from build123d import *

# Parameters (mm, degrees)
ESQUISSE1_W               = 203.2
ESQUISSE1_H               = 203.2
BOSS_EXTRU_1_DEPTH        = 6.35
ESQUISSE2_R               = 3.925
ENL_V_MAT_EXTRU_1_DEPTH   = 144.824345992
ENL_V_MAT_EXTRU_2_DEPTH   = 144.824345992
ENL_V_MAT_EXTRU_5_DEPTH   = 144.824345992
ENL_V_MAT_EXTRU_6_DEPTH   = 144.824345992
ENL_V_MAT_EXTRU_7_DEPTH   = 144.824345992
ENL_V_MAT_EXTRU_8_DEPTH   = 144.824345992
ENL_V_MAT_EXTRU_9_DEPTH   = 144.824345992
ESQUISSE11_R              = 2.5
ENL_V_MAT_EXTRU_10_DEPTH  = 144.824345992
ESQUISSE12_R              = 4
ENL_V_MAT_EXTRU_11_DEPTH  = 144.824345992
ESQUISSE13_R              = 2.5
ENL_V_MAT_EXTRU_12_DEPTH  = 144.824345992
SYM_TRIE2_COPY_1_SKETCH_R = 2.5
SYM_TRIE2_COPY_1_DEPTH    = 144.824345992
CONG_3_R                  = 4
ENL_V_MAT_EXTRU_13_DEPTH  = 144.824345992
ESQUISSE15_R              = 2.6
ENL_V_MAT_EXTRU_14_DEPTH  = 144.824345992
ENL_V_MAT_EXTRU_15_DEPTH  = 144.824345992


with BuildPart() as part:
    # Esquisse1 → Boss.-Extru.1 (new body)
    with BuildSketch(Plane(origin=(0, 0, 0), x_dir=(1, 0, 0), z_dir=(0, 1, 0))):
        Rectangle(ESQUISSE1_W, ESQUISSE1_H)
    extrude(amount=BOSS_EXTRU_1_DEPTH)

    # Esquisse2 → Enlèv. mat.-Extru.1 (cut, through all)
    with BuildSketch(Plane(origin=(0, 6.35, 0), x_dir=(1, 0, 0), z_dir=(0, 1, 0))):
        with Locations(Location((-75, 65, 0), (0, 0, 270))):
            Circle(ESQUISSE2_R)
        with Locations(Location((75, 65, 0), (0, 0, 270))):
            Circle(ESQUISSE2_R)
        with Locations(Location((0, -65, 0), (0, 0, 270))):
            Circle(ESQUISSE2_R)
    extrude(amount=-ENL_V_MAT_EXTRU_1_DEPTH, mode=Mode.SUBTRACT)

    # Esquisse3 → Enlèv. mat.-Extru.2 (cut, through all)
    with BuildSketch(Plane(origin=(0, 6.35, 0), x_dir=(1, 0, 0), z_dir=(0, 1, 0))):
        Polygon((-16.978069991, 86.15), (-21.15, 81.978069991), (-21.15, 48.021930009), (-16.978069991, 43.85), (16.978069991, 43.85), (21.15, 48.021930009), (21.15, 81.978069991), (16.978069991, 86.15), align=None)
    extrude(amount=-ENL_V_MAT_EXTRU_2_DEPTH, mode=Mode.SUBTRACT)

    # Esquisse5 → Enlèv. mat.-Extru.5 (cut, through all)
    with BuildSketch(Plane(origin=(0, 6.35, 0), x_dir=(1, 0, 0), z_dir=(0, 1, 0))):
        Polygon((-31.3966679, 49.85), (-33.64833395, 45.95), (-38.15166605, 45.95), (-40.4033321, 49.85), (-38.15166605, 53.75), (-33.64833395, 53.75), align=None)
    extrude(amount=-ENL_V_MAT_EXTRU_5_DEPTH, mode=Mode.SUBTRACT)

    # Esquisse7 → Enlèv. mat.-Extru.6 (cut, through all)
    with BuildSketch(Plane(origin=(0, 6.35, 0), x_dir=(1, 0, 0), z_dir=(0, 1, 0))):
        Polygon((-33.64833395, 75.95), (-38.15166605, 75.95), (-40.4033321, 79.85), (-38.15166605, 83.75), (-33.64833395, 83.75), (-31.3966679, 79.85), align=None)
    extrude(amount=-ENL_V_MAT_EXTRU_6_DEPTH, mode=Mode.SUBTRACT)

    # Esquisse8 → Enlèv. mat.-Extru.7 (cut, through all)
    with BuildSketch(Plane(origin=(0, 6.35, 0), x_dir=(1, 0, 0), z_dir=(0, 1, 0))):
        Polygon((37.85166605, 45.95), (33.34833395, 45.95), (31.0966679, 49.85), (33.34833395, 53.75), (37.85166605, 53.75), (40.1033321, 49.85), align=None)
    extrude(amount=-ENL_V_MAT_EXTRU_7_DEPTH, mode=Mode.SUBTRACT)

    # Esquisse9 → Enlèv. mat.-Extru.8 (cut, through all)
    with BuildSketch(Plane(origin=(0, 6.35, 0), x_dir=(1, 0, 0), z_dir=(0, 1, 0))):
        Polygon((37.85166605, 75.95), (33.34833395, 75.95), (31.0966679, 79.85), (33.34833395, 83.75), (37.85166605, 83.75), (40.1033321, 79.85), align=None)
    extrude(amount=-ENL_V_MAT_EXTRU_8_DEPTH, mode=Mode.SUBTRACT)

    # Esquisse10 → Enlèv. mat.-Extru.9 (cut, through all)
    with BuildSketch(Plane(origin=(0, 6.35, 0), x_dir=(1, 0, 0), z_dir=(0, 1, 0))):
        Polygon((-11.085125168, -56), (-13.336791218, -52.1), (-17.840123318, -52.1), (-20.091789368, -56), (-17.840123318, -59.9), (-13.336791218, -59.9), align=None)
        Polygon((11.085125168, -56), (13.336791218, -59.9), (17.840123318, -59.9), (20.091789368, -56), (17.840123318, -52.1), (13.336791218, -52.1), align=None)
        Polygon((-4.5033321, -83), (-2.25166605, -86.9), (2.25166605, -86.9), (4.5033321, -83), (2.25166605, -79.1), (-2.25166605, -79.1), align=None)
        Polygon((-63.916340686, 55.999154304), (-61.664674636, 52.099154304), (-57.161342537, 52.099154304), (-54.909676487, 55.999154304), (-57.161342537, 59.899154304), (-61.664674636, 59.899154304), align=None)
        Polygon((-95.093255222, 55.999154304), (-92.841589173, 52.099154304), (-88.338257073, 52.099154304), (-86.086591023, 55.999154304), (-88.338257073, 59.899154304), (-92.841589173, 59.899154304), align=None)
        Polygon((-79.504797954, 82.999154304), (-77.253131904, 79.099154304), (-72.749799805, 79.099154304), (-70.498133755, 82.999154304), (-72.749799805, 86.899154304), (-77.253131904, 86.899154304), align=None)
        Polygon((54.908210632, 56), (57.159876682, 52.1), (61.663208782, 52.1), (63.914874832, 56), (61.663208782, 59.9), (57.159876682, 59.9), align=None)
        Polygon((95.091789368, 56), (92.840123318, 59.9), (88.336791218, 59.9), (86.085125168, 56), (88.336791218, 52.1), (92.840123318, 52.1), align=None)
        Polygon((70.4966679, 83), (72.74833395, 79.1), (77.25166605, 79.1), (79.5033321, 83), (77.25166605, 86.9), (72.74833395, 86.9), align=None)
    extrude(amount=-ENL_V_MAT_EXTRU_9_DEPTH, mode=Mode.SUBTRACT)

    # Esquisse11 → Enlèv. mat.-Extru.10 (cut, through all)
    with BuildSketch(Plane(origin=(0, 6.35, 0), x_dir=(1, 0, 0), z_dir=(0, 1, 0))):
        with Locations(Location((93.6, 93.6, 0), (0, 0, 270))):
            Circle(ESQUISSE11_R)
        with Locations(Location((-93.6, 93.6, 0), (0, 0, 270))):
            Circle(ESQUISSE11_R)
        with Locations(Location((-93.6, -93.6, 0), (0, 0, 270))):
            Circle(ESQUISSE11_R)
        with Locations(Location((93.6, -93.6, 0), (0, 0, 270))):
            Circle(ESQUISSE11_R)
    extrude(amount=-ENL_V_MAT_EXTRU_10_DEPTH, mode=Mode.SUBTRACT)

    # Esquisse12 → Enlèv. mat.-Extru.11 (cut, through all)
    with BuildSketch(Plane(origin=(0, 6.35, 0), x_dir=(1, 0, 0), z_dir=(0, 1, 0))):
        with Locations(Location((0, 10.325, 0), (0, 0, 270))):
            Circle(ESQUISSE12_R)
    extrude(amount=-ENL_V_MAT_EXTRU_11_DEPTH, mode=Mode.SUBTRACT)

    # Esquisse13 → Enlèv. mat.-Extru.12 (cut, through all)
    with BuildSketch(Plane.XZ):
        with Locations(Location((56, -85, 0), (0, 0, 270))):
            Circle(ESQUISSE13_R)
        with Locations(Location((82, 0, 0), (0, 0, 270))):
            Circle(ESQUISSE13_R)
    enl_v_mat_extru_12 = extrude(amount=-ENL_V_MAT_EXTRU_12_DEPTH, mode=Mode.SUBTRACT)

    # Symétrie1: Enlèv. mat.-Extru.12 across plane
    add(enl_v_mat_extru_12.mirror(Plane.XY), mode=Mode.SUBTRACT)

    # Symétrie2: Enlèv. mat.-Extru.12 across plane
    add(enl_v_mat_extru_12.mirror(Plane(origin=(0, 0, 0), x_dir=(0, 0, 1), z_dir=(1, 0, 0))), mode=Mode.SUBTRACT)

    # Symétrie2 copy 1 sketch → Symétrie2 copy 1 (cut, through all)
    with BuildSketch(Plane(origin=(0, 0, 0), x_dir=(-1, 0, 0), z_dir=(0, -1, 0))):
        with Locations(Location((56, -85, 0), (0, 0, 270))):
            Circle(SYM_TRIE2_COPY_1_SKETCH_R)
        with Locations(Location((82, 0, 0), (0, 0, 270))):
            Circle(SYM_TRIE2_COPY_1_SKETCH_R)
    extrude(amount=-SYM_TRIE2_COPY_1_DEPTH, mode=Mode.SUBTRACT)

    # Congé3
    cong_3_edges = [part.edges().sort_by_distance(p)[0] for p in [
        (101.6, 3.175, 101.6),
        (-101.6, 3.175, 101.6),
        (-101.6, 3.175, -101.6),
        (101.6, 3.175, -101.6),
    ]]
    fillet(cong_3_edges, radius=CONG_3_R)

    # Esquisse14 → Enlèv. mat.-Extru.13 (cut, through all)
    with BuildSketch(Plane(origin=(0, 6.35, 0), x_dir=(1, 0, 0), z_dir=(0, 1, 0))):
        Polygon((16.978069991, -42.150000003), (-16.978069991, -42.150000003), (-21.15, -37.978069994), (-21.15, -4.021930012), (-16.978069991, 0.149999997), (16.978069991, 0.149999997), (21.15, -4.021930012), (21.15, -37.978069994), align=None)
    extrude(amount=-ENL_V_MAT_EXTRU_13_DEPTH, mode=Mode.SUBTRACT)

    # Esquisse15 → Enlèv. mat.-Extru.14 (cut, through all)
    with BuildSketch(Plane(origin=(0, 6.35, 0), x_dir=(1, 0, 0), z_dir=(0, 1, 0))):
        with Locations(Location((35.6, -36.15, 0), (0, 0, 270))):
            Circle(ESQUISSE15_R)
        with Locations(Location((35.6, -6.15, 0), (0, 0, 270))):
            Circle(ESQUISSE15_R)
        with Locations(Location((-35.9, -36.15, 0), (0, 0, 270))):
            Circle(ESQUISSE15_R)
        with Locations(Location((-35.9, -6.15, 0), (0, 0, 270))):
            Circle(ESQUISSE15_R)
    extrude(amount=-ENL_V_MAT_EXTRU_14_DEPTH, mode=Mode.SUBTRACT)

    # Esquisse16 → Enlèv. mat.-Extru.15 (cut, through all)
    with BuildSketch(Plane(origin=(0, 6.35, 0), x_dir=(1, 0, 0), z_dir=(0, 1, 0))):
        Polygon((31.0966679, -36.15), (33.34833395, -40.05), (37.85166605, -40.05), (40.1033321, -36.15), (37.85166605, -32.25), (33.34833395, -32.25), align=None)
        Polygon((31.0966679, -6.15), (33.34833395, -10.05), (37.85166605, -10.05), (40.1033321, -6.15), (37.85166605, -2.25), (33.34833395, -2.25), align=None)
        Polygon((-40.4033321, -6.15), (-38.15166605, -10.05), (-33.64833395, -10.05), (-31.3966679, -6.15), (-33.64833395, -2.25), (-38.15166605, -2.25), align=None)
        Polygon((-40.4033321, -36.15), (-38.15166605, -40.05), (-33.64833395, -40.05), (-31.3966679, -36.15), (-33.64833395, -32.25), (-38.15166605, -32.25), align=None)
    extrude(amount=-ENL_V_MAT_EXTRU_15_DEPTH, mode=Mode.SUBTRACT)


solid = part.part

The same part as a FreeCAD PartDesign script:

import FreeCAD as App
import Part
import Sketcher

V = App.Vector
Q = App.Units.Quantity


def edges_at(feature, points):
    """Names of the edges that pass closest to the given points."""
    edges = feature.Shape.Edges
    near = lambda p: min(range(len(edges)), key=lambda i: edges[i].distToShape(Part.Vertex(*p))[0])
    return sorted({f"Edge{near(p) + 1}" for p in points})

doc = App.newDocument("Part")
body = doc.addObject("PartDesign::Body", "Body")

sketch1 = body.newObject("Sketcher::SketchObject", "Sketch")
sketch1.AttachmentSupport = (doc.getObject("XZ_Plane"), [""])
sketch1.MapMode = "FlatFace"
sketch1.addGeometry([
    Part.LineSegment(V(-101.6, -101.6, 0), V(-101.6, 101.6, 0)),
    Part.LineSegment(V(-101.6, 101.6, 0), V(101.6, 101.6, 0)),
    Part.LineSegment(V(101.6, 101.6, 0), V(101.6, -101.6, 0)),
    Part.LineSegment(V(101.6, -101.6, 0), V(-101.6, -101.6, 0)),
], False)
sketch1.addConstraint([
    Sketcher.Constraint("Coincident", 0, 2, 1, 1),
    Sketcher.Constraint("Coincident", 1, 2, 2, 1),
    Sketcher.Constraint("Coincident", 2, 2, 3, 1),
    Sketcher.Constraint("Coincident", 3, 2, 0, 1),
    Sketcher.Constraint("Vertical", 0),
    Sketcher.Constraint("Horizontal", 1),
    Sketcher.Constraint("Vertical", 2),
    Sketcher.Constraint("Horizontal", 3),
    Sketcher.Constraint("Symmetric", 0, 2, 2, 2, -1, 1),
    Sketcher.Constraint("Equal", 3, 0),
    Sketcher.Constraint("DistanceX", 1, 1, 1, 2, Q("203.2 mm")),
])
pad1 = body.newObject("PartDesign::Pad", "Pad")
pad1.Profile = sketch1
pad1.Length = 6.35
pad1.Reversed = True

sketch2 = body.newObject("Sketcher::SketchObject", "Sketch001")
sketch2.AttachmentSupport = (doc.getObject("XZ_Plane"), [""])
sketch2.MapMode = "FlatFace"
sketch2.AttachmentOffset = App.Placement(V(0, 0, -6.35), App.Rotation())
sketch2.addGeometry([
    Part.Circle(V(-75, -65, 0), V(0, 0, 1), 3.925),
    Part.Circle(V(75, -65, 0), V(0, 0, 1), 3.925),
    Part.Circle(V(0, 65, 0), V(0, 0, 1), 3.925),
], False)
sketch2.addConstraint([
    Sketcher.Constraint("Equal", 0, 1),
    Sketcher.Constraint("Equal", 1, 2),
    Sketcher.Constraint("Symmetric", 0, 3, 1, 3, -2),
    Sketcher.Constraint("PointOnObject", 2, 3, -2),
    Sketcher.Constraint("Diameter", 0, Q("7.85 mm")),
    Sketcher.Constraint("DistanceX", 0, 3, -1, 1, Q("75 mm")),
    Sketcher.Constraint("DistanceY", 0, 3, -1, 1, Q("65 mm")),
    Sketcher.Constraint("DistanceY", -1, 1, 2, 3, Q("65 mm")),
])
pocket1 = body.newObject("PartDesign::Pocket", "Pocket")
pocket1.Profile = sketch2
pocket1.Type = "ThroughAll"
pocket1.Reversed = True

sketch3 = body.newObject("Sketcher::SketchObject", "Sketch002")
sketch3.AttachmentSupport = (doc.getObject("XZ_Plane"), [""])
sketch3.MapMode = "FlatFace"
sketch3.AttachmentOffset = App.Placement(V(0, 0, -6.35), App.Rotation())
sketch3.addGeometry([
    Part.LineSegment(V(-16.97807, -86.15, 0), V(-21.15, -81.97807, 0)),
    Part.LineSegment(V(-21.15, -81.97807, 0), V(-21.15, -48.02193, 0)),
    Part.LineSegment(V(-21.15, -48.02193, 0), V(-16.97807, -43.85, 0)),
    Part.LineSegment(V(-16.97807, -43.85, 0), V(16.97807, -43.85, 0)),
    Part.LineSegment(V(16.97807, -43.85, 0), V(21.15, -48.02193, 0)),
    Part.LineSegment(V(21.15, -48.02193, 0), V(21.15, -81.97807, 0)),
    Part.LineSegment(V(21.15, -81.97807, 0), V(16.97807, -86.15, 0)),
    Part.LineSegment(V(16.97807, -86.15, 0), V(-16.97807, -86.15, 0)),
], False)
sketch3.addConstraint([
    Sketcher.Constraint("Coincident", 0, 2, 1, 1),
    Sketcher.Constraint("Coincident", 1, 2, 2, 1),
    Sketcher.Constraint("Coincident", 2, 2, 3, 1),
    Sketcher.Constraint("Coincident", 3, 2, 4, 1),
    Sketcher.Constraint("Coincident", 4, 2, 5, 1),
    Sketcher.Constraint("Coincident", 5, 2, 6, 1),
    Sketcher.Constraint("Coincident", 6, 2, 7, 1),
    Sketcher.Constraint("Coincident", 7, 2, 0, 1),
    Sketcher.Constraint("Vertical", 1),
    Sketcher.Constraint("Horizontal", 3),
    Sketcher.Constraint("Vertical", 5),
    Sketcher.Constraint("Horizontal", 7),
    Sketcher.Constraint("Symmetric", 1, 2, 4, 2, -2),
    Sketcher.Constraint("Perpendicular", 0, 2),
    Sketcher.Constraint("Perpendicular", 2, 4),
    Sketcher.Constraint("Perpendicular", 4, 6),
    Sketcher.Constraint("Horizontal", 0, 2, 5, 2),
    Sketcher.Constraint("Vertical", 3, 2, 6, 2),
    Sketcher.Constraint("Vertical", 2, 2, 7, 2),
    Sketcher.Constraint("Equal", 7, 1),
    Sketcher.Constraint("Distance", 0, Q("5.9 mm")),
    Sketcher.Constraint("DistanceX", 1, 2, 4, 2, Q("42.3 mm")),
    Sketcher.Constraint("DistanceY", 2, 2, -1, 1, Q("43.85 mm")),
])
pocket2 = body.newObject("PartDesign::Pocket", "Pocket001")
pocket2.Profile = sketch3
pocket2.Type = "ThroughAll"
pocket2.Reversed = True

sketch4 = body.newObject("Sketcher::SketchObject", "Sketch003")
sketch4.AttachmentSupport = (doc.getObject("XZ_Plane"), [""])
sketch4.MapMode = "FlatFace"
sketch4.AttachmentOffset = App.Placement(V(0, 0, -6.35), App.Rotation())
sketch4.addGeometry([
    Part.LineSegment(V(-33.648334, -45.95, 0), V(-31.396668, -49.85, 0)),
    Part.LineSegment(V(-31.396668, -49.85, 0), V(-33.648334, -53.75, 0)),
    Part.LineSegment(V(-33.648334, -53.75, 0), V(-38.151666, -53.75, 0)),
    Part.LineSegment(V(-38.151666, -53.75, 0), V(-40.403332, -49.85, 0)),
    Part.LineSegment(V(-40.403332, -49.85, 0), V(-38.151666, -45.95, 0)),
    Part.LineSegment(V(-38.151666, -45.95, 0), V(-33.648334, -45.95, 0)),
], False)
sketch4.addConstraint([
    Sketcher.Constraint("Coincident", 0, 2, 1, 1),
    Sketcher.Constraint("Coincident", 1, 2, 2, 1),
    Sketcher.Constraint("Coincident", 2, 2, 3, 1),
    Sketcher.Constraint("Coincident", 3, 2, 4, 1),
    Sketcher.Constraint("Coincident", 4, 2, 5, 1),
    Sketcher.Constraint("Coincident", 5, 2, 0, 1),
    Sketcher.Constraint("Horizontal", 2),
    Sketcher.Constraint("Horizontal", 5),
    Sketcher.Constraint("Parallel", 0, 3),
    Sketcher.Constraint("Parallel", 1, 4),
    Sketcher.Constraint("Horizontal", 0, 2, 3, 2),
    Sketcher.Constraint("Vertical", 2, 2, 4, 2),
    Sketcher.Constraint("Vertical", 1, 2, 5, 2),
    Sketcher.Constraint("Angle", 0, Q("-60 deg")),
    Sketcher.Constraint("DistanceY", 1, 2, 0, 2, Q("3.9 mm")),
    Sketcher.Constraint("DistanceY", 0, 2, -1, 1, Q("49.85 mm")),
    Sketcher.Constraint("DistanceX", 2, 2, 0, 2, Q("6.754998 mm")),
    Sketcher.Constraint("DistanceX", 0, 2, -1, 1, Q("31.396668 mm")),
])
pocket3 = body.newObject("PartDesign::Pocket", "Pocket002")
pocket3.Profile = sketch4
pocket3.Type = "ThroughAll"
pocket3.Reversed = True

sketch5 = body.newObject("Sketcher::SketchObject", "Sketch004")
sketch5.AttachmentSupport = (doc.getObject("XZ_Plane"), [""])
sketch5.MapMode = "FlatFace"
sketch5.AttachmentOffset = App.Placement(V(0, 0, -6.35), App.Rotation())
sketch5.addGeometry([
    Part.LineSegment(V(-38.151666, -75.95, 0), V(-33.648334, -75.95, 0)),
    Part.LineSegment(V(-33.648334, -75.95, 0), V(-31.396668, -79.85, 0)),
    Part.LineSegment(V(-31.396668, -79.85, 0), V(-33.648334, -83.75, 0)),
    Part.LineSegment(V(-33.648334, -83.75, 0), V(-38.151666, -83.75, 0)),
    Part.LineSegment(V(-38.151666, -83.75, 0), V(-40.403332, -79.85, 0)),
    Part.LineSegment(V(-40.403332, -79.85, 0), V(-38.151666, -75.95, 0)),
], False)
sketch5.addConstraint([
    Sketcher.Constraint("Coincident", 0, 2, 1, 1),
    Sketcher.Constraint("Coincident", 1, 2, 2, 1),
    Sketcher.Constraint("Coincident", 2, 2, 3, 1),
    Sketcher.Constraint("Coincident", 3, 2, 4, 1),
    Sketcher.Constraint("Coincident", 4, 2, 5, 1),
    Sketcher.Constraint("Coincident", 5, 2, 0, 1),
    Sketcher.Constraint("Horizontal", 0),
    Sketcher.Constraint("Horizontal", 3),
    Sketcher.Constraint("Parallel", 1, 4),
    Sketcher.Constraint("Parallel", 2, 5),
    Sketcher.Constraint("Horizontal", 1, 2, 4, 2),
    Sketcher.Constraint("Vertical", 0, 2, 2, 2),
    Sketcher.Constraint("Vertical", 3, 2, 5, 2),
    Sketcher.Constraint("Angle", 1, Q("-60 deg")),
    Sketcher.Constraint("DistanceY", 1, 2, 0, 2, Q("3.9 mm")),
    Sketcher.Constraint("DistanceY", 0, 2, -1, 1, Q("75.95 mm")),
    Sketcher.Constraint("DistanceX", 3, 2, 1, 2, Q("6.754998 mm")),
    Sketcher.Constraint("DistanceX", 0, 2, -1, 1, Q("33.648334 mm")),
])
pocket4 = body.newObject("PartDesign::Pocket", "Pocket003")
pocket4.Profile = sketch5
pocket4.Type = "ThroughAll"
pocket4.Reversed = True

sketch6 = body.newObject("Sketcher::SketchObject", "Sketch005")
sketch6.AttachmentSupport = (doc.getObject("XZ_Plane"), [""])
sketch6.MapMode = "FlatFace"
sketch6.AttachmentOffset = App.Placement(V(0, 0, -6.35), App.Rotation())
sketch6.addGeometry([
    Part.LineSegment(V(33.348334, -45.95, 0), V(37.851666, -45.95, 0)),
    Part.LineSegment(V(37.851666, -45.95, 0), V(40.103332, -49.85, 0)),
    Part.LineSegment(V(40.103332, -49.85, 0), V(37.851666, -53.75, 0)),
    Part.LineSegment(V(37.851666, -53.75, 0), V(33.348334, -53.75, 0)),
    Part.LineSegment(V(33.348334, -53.75, 0), V(31.096668, -49.85, 0)),
    Part.LineSegment(V(31.096668, -49.85, 0), V(33.348334, -45.95, 0)),
], False)
sketch6.addConstraint([
    Sketcher.Constraint("Coincident", 0, 2, 1, 1),
    Sketcher.Constraint("Coincident", 1, 2, 2, 1),
    Sketcher.Constraint("Coincident", 2, 2, 3, 1),
    Sketcher.Constraint("Coincident", 3, 2, 4, 1),
    Sketcher.Constraint("Coincident", 4, 2, 5, 1),
    Sketcher.Constraint("Coincident", 5, 2, 0, 1),
    Sketcher.Constraint("Horizontal", 0),
    Sketcher.Constraint("Horizontal", 3),
    Sketcher.Constraint("Parallel", 1, 4),
    Sketcher.Constraint("Parallel", 2, 5),
    Sketcher.Constraint("Horizontal", 1, 2, 4, 2),
    Sketcher.Constraint("Vertical", 0, 2, 2, 2),
    Sketcher.Constraint("Vertical", 3, 2, 5, 2),
    Sketcher.Constraint("Angle", 1, Q("-60 deg")),
    Sketcher.Constraint("DistanceY", 1, 2, 0, 2, Q("3.9 mm")),
    Sketcher.Constraint("DistanceY", 0, 2, -1, 1, Q("45.95 mm")),
    Sketcher.Constraint("DistanceX", 3, 2, 1, 2, Q("6.754998 mm")),
    Sketcher.Constraint("DistanceX", -1, 1, 0, 2, Q("37.851666 mm")),
])
pocket5 = body.newObject("PartDesign::Pocket", "Pocket004")
pocket5.Profile = sketch6
pocket5.Type = "ThroughAll"
pocket5.Reversed = True

sketch7 = body.newObject("Sketcher::SketchObject", "Sketch006")
sketch7.AttachmentSupport = (doc.getObject("XZ_Plane"), [""])
sketch7.MapMode = "FlatFace"
sketch7.AttachmentOffset = App.Placement(V(0, 0, -6.35), App.Rotation())
sketch7.addGeometry([
    Part.LineSegment(V(33.348334, -75.95, 0), V(37.851666, -75.95, 0)),
    Part.LineSegment(V(37.851666, -75.95, 0), V(40.103332, -79.85, 0)),
    Part.LineSegment(V(40.103332, -79.85, 0), V(37.851666, -83.75, 0)),
    Part.LineSegment(V(37.851666, -83.75, 0), V(33.348334, -83.75, 0)),
    Part.LineSegment(V(33.348334, -83.75, 0), V(31.096668, -79.85, 0)),
    Part.LineSegment(V(31.096668, -79.85, 0), V(33.348334, -75.95, 0)),
], False)
sketch7.addConstraint([
    Sketcher.Constraint("Coincident", 0, 2, 1, 1),
    Sketcher.Constraint("Coincident", 1, 2, 2, 1),
    Sketcher.Constraint("Coincident", 2, 2, 3, 1),
    Sketcher.Constraint("Coincident", 3, 2, 4, 1),
    Sketcher.Constraint("Coincident", 4, 2, 5, 1),
    Sketcher.Constraint("Coincident", 5, 2, 0, 1),
    Sketcher.Constraint("Horizontal", 0),
    Sketcher.Constraint("Horizontal", 3),
    Sketcher.Constraint("Parallel", 1, 4),
    Sketcher.Constraint("Parallel", 2, 5),
    Sketcher.Constraint("Horizontal", 1, 2, 4, 2),
    Sketcher.Constraint("Vertical", 0, 2, 2, 2),
    Sketcher.Constraint("Vertical", 3, 2, 5, 2),
    Sketcher.Constraint("Angle", 1, Q("-60 deg")),
    Sketcher.Constraint("DistanceY", 1, 2, 0, 2, Q("3.9 mm")),
    Sketcher.Constraint("DistanceY", 0, 2, -1, 1, Q("75.95 mm")),
    Sketcher.Constraint("DistanceX", 3, 2, 1, 2, Q("6.754998 mm")),
    Sketcher.Constraint("DistanceX", -1, 1, 0, 2, Q("37.851666 mm")),
])
pocket6 = body.newObject("PartDesign::Pocket", "Pocket005")
pocket6.Profile = sketch7
pocket6.Type = "ThroughAll"
pocket6.Reversed = True

sketch8 = body.newObject("Sketcher::SketchObject", "Sketch007")
sketch8.AttachmentSupport = (doc.getObject("XZ_Plane"), [""])
sketch8.MapMode = "FlatFace"
sketch8.AttachmentOffset = App.Placement(V(0, 0, -6.35), App.Rotation())
sketch8.addGeometry([
    Part.LineSegment(V(-11.085125, 56, 0), V(-13.336791, 52.1, 0)),
    Part.LineSegment(V(-13.336791, 52.1, 0), V(-17.840123, 52.1, 0)),
    Part.LineSegment(V(-17.840123, 52.1, 0), V(-20.091789, 56, 0)),
    Part.LineSegment(V(-20.091789, 56, 0), V(-17.840123, 59.9, 0)),
    Part.LineSegment(V(-17.840123, 59.9, 0), V(-13.336791, 59.9, 0)),
    Part.LineSegment(V(-13.336791, 59.9, 0), V(-11.085125, 56, 0)),
    Part.LineSegment(V(11.085125, 56, 0), V(13.336791, 59.9, 0)),
    Part.LineSegment(V(13.336791, 59.9, 0), V(17.840123, 59.9, 0)),
    Part.LineSegment(V(17.840123, 59.9, 0), V(20.091789, 56, 0)),
    Part.LineSegment(V(20.091789, 56, 0), V(17.840123, 52.1, 0)),
    Part.LineSegment(V(17.840123, 52.1, 0), V(13.336791, 52.1, 0)),
    Part.LineSegment(V(13.336791, 52.1, 0), V(11.085125, 56, 0)),
    Part.LineSegment(V(-4.503332, 83, 0), V(-2.251666, 86.9, 0)),
    Part.LineSegment(V(-2.251666, 86.9, 0), V(2.251666, 86.9, 0)),
    Part.LineSegment(V(2.251666, 86.9, 0), V(4.503332, 83, 0)),
    Part.LineSegment(V(4.503332, 83, 0), V(2.251666, 79.1, 0)),
    Part.LineSegment(V(2.251666, 79.1, 0), V(-2.251666, 79.1, 0)),
    Part.LineSegment(V(-2.251666, 79.1, 0), V(-4.503332, 83, 0)),
    Part.LineSegment(V(-63.916341, -55.999154, 0), V(-61.664675, -52.099154, 0)),
    Part.LineSegment(V(-61.664675, -52.099154, 0), V(-57.161343, -52.099154, 0)),
    Part.LineSegment(V(-57.161343, -52.099154, 0), V(-54.909676, -55.999154, 0)),
    Part.LineSegment(V(-54.909676, -55.999154, 0), V(-57.161343, -59.899154, 0)),
    Part.LineSegment(V(-57.161343, -59.899154, 0), V(-61.664675, -59.899154, 0)),
    Part.LineSegment(V(-61.664675, -59.899154, 0), V(-63.916341, -55.999154, 0)),
    Part.LineSegment(V(-95.093255, -55.999154, 0), V(-92.841589, -52.099154, 0)),
    Part.LineSegment(V(-92.841589, -52.099154, 0), V(-88.338257, -52.099154, 0)),
    Part.LineSegment(V(-88.338257, -52.099154, 0), V(-86.086591, -55.999154, 0)),
    Part.LineSegment(V(-86.086591, -55.999154, 0), V(-88.338257, -59.899154, 0)),
    Part.LineSegment(V(-88.338257, -59.899154, 0), V(-92.841589, -59.899154, 0)),
    Part.LineSegment(V(-92.841589, -59.899154, 0), V(-95.093255, -55.999154, 0)),
    Part.LineSegment(V(-79.504798, -82.999154, 0), V(-77.253132, -79.099154, 0)),
    Part.LineSegment(V(-77.253132, -79.099154, 0), V(-72.7498, -79.099154, 0)),
    Part.LineSegment(V(-72.7498, -79.099154, 0), V(-70.498134, -82.999154, 0)),
    Part.LineSegment(V(-70.498134, -82.999154, 0), V(-72.7498, -86.899154, 0)),
    Part.LineSegment(V(-72.7498, -86.899154, 0), V(-77.253132, -86.899154, 0)),
    Part.LineSegment(V(-77.253132, -86.899154, 0), V(-79.504798, -82.999154, 0)),
    Part.LineSegment(V(54.908211, -56, 0), V(57.159877, -52.1, 0)),
    Part.LineSegment(V(57.159877, -52.1, 0), V(61.663209, -52.1, 0)),
    Part.LineSegment(V(61.663209, -52.1, 0), V(63.914875, -56, 0)),
    Part.LineSegment(V(63.914875, -56, 0), V(61.663209, -59.9, 0)),
    Part.LineSegment(V(61.663209, -59.9, 0), V(57.159877, -59.9, 0)),
    Part.LineSegment(V(57.159877, -59.9, 0), V(54.908211, -56, 0)),
    Part.LineSegment(V(95.091789, -56, 0), V(92.840123, -59.9, 0)),
    Part.LineSegment(V(92.840123, -59.9, 0), V(88.336791, -59.9, 0)),
    Part.LineSegment(V(88.336791, -59.9, 0), V(86.085125, -56, 0)),
    Part.LineSegment(V(86.085125, -56, 0), V(88.336791, -52.1, 0)),
    Part.LineSegment(V(88.336791, -52.1, 0), V(92.840123, -52.1, 0)),
    Part.LineSegment(V(92.840123, -52.1, 0), V(95.091789, -56, 0)),
    Part.LineSegment(V(70.496668, -83, 0), V(72.748334, -79.1, 0)),
    Part.LineSegment(V(72.748334, -79.1, 0), V(77.251666, -79.1, 0)),
    Part.LineSegment(V(77.251666, -79.1, 0), V(79.503332, -83, 0)),
    Part.LineSegment(V(79.503332, -83, 0), V(77.251666, -86.9, 0)),
    Part.LineSegment(V(77.251666, -86.9, 0), V(72.748334, -86.9, 0)),
    Part.LineSegment(V(72.748334, -86.9, 0), V(70.496668, -83, 0)),
], False)
sketch8.addConstraint([
    Sketcher.Constraint("Coincident", 0, 2, 1, 1),
    Sketcher.Constraint("Coincident", 1, 2, 2, 1),
    Sketcher.Constraint("Coincident", 2, 2, 3, 1),
    Sketcher.Constraint("Coincident", 3, 2, 4, 1),
    Sketcher.Constraint("Coincident", 4, 2, 5, 1),
    Sketcher.Constraint("Coincident", 5, 2, 0, 1),
    Sketcher.Constraint("Coincident", 6, 2, 7, 1),
    Sketcher.Constraint("Coincident", 7, 2, 8, 1),
    Sketcher.Constraint("Coincident", 8, 2, 9, 1),
    Sketcher.Constraint("Coincident", 9, 2, 10, 1),
    Sketcher.Constraint("Coincident", 10, 2, 11, 1),
    Sketcher.Constraint("Coincident", 11, 2, 6, 1),
    Sketcher.Constraint("Coincident", 12, 2, 13, 1),
    Sketcher.Constraint("Coincident", 13, 2, 14, 1),
    Sketcher.Constraint("Coincident", 14, 2, 15, 1),
    Sketcher.Constraint("Coincident", 15, 2, 16, 1),
    Sketcher.Constraint("Coincident", 16, 2, 17, 1),
    Sketcher.Constraint("Coincident", 17, 2, 12, 1),
    Sketcher.Constraint("Coincident", 18, 2, 19, 1),
    Sketcher.Constraint("Coincident", 19, 2, 20, 1),
    Sketcher.Constraint("Coincident", 20, 2, 21, 1),
    Sketcher.Constraint("Coincident", 21, 2, 22, 1),
    Sketcher.Constraint("Coincident", 22, 2, 23, 1),
    Sketcher.Constraint("Coincident", 23, 2, 18, 1),
    Sketcher.Constraint("Coincident", 24, 2, 25, 1),
    Sketcher.Constraint("Coincident", 25, 2, 26, 1),
    Sketcher.Constraint("Coincident", 26, 2, 27, 1),
    Sketcher.Constraint("Coincident", 27, 2, 28, 1),
    Sketcher.Constraint("Coincident", 28, 2, 29, 1),
    Sketcher.Constraint("Coincident", 29, 2, 24, 1),
    Sketcher.Constraint("Coincident", 30, 2, 31, 1),
    Sketcher.Constraint("Coincident", 31, 2, 32, 1),
    Sketcher.Constraint("Coincident", 32, 2, 33, 1),
    Sketcher.Constraint("Coincident", 33, 2, 34, 1),
    Sketcher.Constraint("Coincident", 34, 2, 35, 1),
    Sketcher.Constraint("Coincident", 35, 2, 30, 1),
    Sketcher.Constraint("Coincident", 36, 2, 37, 1),
    Sketcher.Constraint("Coincident", 37, 2, 38, 1),
    Sketcher.Constraint("Coincident", 38, 2, 39, 1),
    Sketcher.Constraint("Coincident", 39, 2, 40, 1),
    Sketcher.Constraint("Coincident", 40, 2, 41, 1),
    Sketcher.Constraint("Coincident", 41, 2, 36, 1),
    Sketcher.Constraint("Coincident", 42, 2, 43, 1),
    Sketcher.Constraint("Coincident", 43, 2, 44, 1),
    Sketcher.Constraint("Coincident", 44, 2, 45, 1),
    Sketcher.Constraint("Coincident", 45, 2, 46, 1),
    Sketcher.Constraint("Coincident", 46, 2, 47, 1),
    Sketcher.Constraint("Coincident", 47, 2, 42, 1),
    Sketcher.Constraint("Coincident", 48, 2, 49, 1),
    Sketcher.Constraint("Coincident", 49, 2, 50, 1),
    Sketcher.Constraint("Coincident", 50, 2, 51, 1),
    Sketcher.Constraint("Coincident", 51, 2, 52, 1),
    Sketcher.Constraint("Coincident", 52, 2, 53, 1),
    Sketcher.Constraint("Coincident", 53, 2, 48, 1),
    Sketcher.Constraint("Horizontal", 1),
    Sketcher.Constraint("Horizontal", 4),
    Sketcher.Constraint("Horizontal", 7),
    Sketcher.Constraint("Horizontal", 10),
    Sketcher.Constraint("Horizontal", 13),
    Sketcher.Constraint("Horizontal", 16),
    Sketcher.Constraint("Horizontal", 19),
    Sketcher.Constraint("Horizontal", 22),
    Sketcher.Constraint("Horizontal", 25),
    Sketcher.Constraint("Horizontal", 28),
    Sketcher.Constraint("Horizontal", 31),
    Sketcher.Constraint("Horizontal", 34),
    Sketcher.Constraint("Horizontal", 37),
    Sketcher.Constraint("Horizontal", 40),
    Sketcher.Constraint("Horizontal", 43),
    Sketcher.Constraint("Horizontal", 46),
    Sketcher.Constraint("Horizontal", 49),
    Sketcher.Constraint("Horizontal", 52),
    Sketcher.Constraint("Symmetric", 4, 2, 6, 2, -2),
    Sketcher.Constraint("Symmetric", 2, 2, 8, 2, -2),
    Sketcher.Constraint("Symmetric", 1, 2, 9, 2, -2),
    Sketcher.Constraint("Symmetric", 5, 2, 11, 2, -2),
    Sketcher.Constraint("Symmetric", 14, 2, 17, 2, -2),
    Sketcher.Constraint("Parallel", 0, 3),
    Sketcher.Constraint("Parallel", 2, 5),
    Sketcher.Constraint("Parallel", 3, 6),
    Sketcher.Constraint("Parallel", 5, 8),
    Sketcher.Constraint("Parallel", 8, 11),
    Sketcher.Constraint("Parallel", 9, 12),
    Sketcher.Constraint("Parallel", 11, 14),
    Sketcher.Constraint("Parallel", 12, 15),
    Sketcher.Constraint("Parallel", 14, 17),
    Sketcher.Constraint("Parallel", 15, 18),
    Sketcher.Constraint("Parallel", 17, 20),
    Sketcher.Constraint("Parallel", 18, 21),
    Sketcher.Constraint("Parallel", 20, 23),
    Sketcher.Constraint("Parallel", 21, 24),
    Sketcher.Constraint("Parallel", 23, 26),
    Sketcher.Constraint("Parallel", 24, 27),
    Sketcher.Constraint("Parallel", 26, 29),
    Sketcher.Constraint("Parallel", 27, 30),
    Sketcher.Constraint("Parallel", 29, 32),
    Sketcher.Constraint("Parallel", 30, 33),
    Sketcher.Constraint("Parallel", 32, 35),
    Sketcher.Constraint("Parallel", 33, 36),
    Sketcher.Constraint("Parallel", 35, 38),
    Sketcher.Constraint("Parallel", 36, 39),
    Sketcher.Constraint("Parallel", 38, 41),
    Sketcher.Constraint("Parallel", 39, 42),
    Sketcher.Constraint("Parallel", 41, 44),
    Sketcher.Constraint("Parallel", 42, 45),
    Sketcher.Constraint("Parallel", 44, 47),
    Sketcher.Constraint("Parallel", 45, 48),
    Sketcher.Constraint("Parallel", 47, 50),
    Sketcher.Constraint("Parallel", 48, 51),
    Sketcher.Constraint("Parallel", 50, 53),
    Sketcher.Constraint("Horizontal", 2, 2, 5, 2),
    Sketcher.Constraint("Horizontal", 20, 2, 23, 2),
    Sketcher.Constraint("Horizontal", 19, 2, 24, 2),
    Sketcher.Constraint("Horizontal", 23, 2, 26, 2),
    Sketcher.Constraint("Horizontal", 22, 2, 27, 2),
    Sketcher.Constraint("Horizontal", 26, 2, 29, 2),
    Sketcher.Constraint("Horizontal", 32, 2, 35, 2),
    Sketcher.Constraint("Horizontal", 38, 2, 41, 2),
    Sketcher.Constraint("Horizontal", 40, 2, 42, 2),
    Sketcher.Constraint("Horizontal", 41, 2, 44, 2),
    Sketcher.Constraint("Horizontal", 37, 2, 45, 2),
    Sketcher.Constraint("Horizontal", 44, 2, 47, 2),
    Sketcher.Constraint("Horizontal", 50, 2, 53, 2),
    Sketcher.Constraint("Vertical", 1, 2, 3, 2),
    Sketcher.Constraint("Vertical", 13, 2, 15, 2),
    Sketcher.Constraint("Vertical", 19, 2, 21, 2),
    Sketcher.Constraint("Vertical", 31, 2, 33, 2),
    Sketcher.Constraint("Vertical", 37, 2, 39, 2),
    Sketcher.Constraint("Vertical", 49, 2, 51, 2),
    Sketcher.Constraint("Equal", 10, 13),
    Sketcher.Constraint("Equal", 16, 19),
    Sketcher.Constraint("Equal", 22, 25),
    Sketcher.Constraint("Equal", 28, 31),
    Sketcher.Constraint("Equal", 34, 37),
    Sketcher.Constraint("Equal", 40, 43),
    Sketcher.Constraint("Equal", 46, 49),
    Sketcher.Constraint("Equal", 11, 12),
    Sketcher.Constraint("Equal", 17, 18),
    Sketcher.Constraint("Equal", 29, 30),
    Sketcher.Constraint("Equal", 35, 36),
    Sketcher.Constraint("Equal", 47, 48),
    Sketcher.Constraint("Angle", 0, Q("-120 deg")),
    Sketcher.Constraint("DistanceY", -1, 1, 2, 2, Q("56 mm")),
    Sketcher.Constraint("DistanceY", -1, 1, 14, 2, Q("83 mm")),
    Sketcher.Constraint("DistanceY", 38, 2, -1, 1, Q("56 mm")),
    Sketcher.Constraint("DistanceY", 50, 2, -1, 1, Q("83 mm")),
    Sketcher.Constraint("DistanceY", 32, 2, 23, 2, Q("27 mm")),
    Sketcher.Constraint("DistanceY", -1, 1, 0, 2, Q("52.1 mm")),
    Sketcher.Constraint("DistanceX", 2, 2, 0, 2, Q("6.754998 mm")),
    Sketcher.Constraint("DistanceX", 31, 2, -1, 1, Q("72.7498 mm")),
    Sketcher.Constraint("DistanceX", 0, 2, -1, 1, Q("13.336791 mm")),
    Sketcher.Constraint("DistanceX", 23, 2, -1, 1, Q("63.916341 mm")),
    Sketcher.Constraint("DistanceX", 24, 2, -1, 1, Q("92.841589 mm")),
    Sketcher.Constraint("DistanceX", -1, 1, 37, 2, Q("61.663209 mm")),
    Sketcher.Constraint("DistanceX", -1, 1, 43, 2, Q("88.336791 mm")),
    Sketcher.Constraint("DistanceX", 38, 2, 48, 2, Q("8.833459 mm")),
    Sketcher.Constraint("DistanceY", 18, 2, -1, 1, Q("52.099154 mm")),
])
pocket7 = body.newObject("PartDesign::Pocket", "Pocket006")
pocket7.Profile = sketch8
pocket7.Type = "ThroughAll"
pocket7.Reversed = True

sketch9 = body.newObject("Sketcher::SketchObject", "Sketch008")
sketch9.AttachmentSupport = (doc.getObject("XZ_Plane"), [""])
sketch9.MapMode = "FlatFace"
sketch9.AttachmentOffset = App.Placement(V(0, 0, -6.35), App.Rotation())
sketch9.addGeometry([
    Part.Circle(V(93.6, -93.6, 0), V(0, 0, 1), 2.5),
    Part.Circle(V(-93.6, -93.6, 0), V(0, 0, 1), 2.5),
    Part.Circle(V(-93.6, 93.6, 0), V(0, 0, 1), 2.5),
    Part.Circle(V(93.6, 93.6, 0), V(0, 0, 1), 2.5),
], False)
sketch9.addConstraint([
    Sketcher.Constraint("Equal", 0, 1),
    Sketcher.Constraint("Equal", 1, 2),
    Sketcher.Constraint("Equal", 2, 3),
    Sketcher.Constraint("Symmetric", 0, 3, 2, 3, -1, 1),
    Sketcher.Constraint("Symmetric", 1, 3, 3, 3, -1, 1),
    Sketcher.Constraint("Symmetric", 0, 3, 1, 3, -2),
    Sketcher.Constraint("Diameter", 0, Q("5 mm")),
    Sketcher.Constraint("DistanceX", -1, 1, 0, 3, Q("93.6 mm")),
    Sketcher.Constraint("DistanceY", 0, 3, -1, 1, Q("93.6 mm")),
])
pocket8 = body.newObject("PartDesign::Pocket", "Pocket007")
pocket8.Profile = sketch9
pocket8.Type = "ThroughAll"
pocket8.Reversed = True

sketch10 = body.newObject("Sketcher::SketchObject", "Sketch009")
sketch10.AttachmentSupport = (doc.getObject("XZ_Plane"), [""])
sketch10.MapMode = "FlatFace"
sketch10.AttachmentOffset = App.Placement(V(0, 0, -6.35), App.Rotation())
sketch10.addGeometry(Part.Circle(V(0, -10.325, 0), V(0, 0, 1), 4), False)
sketch10.addConstraint([
    Sketcher.Constraint("PointOnObject", 0, 3, -2),
    Sketcher.Constraint("Diameter", 0, Q("8 mm")),
    Sketcher.Constraint("DistanceY", 0, 3, -1, 1, Q("10.325 mm")),
])
pocket9 = body.newObject("PartDesign::Pocket", "Pocket008")
pocket9.Profile = sketch10
pocket9.Type = "ThroughAll"
pocket9.Reversed = True

sketch11 = body.newObject("Sketcher::SketchObject", "Sketch010")
sketch11.AttachmentSupport = (doc.getObject("XZ_Plane"), [""])
sketch11.MapMode = "FlatFace"
sketch11.addGeometry([
    Part.Circle(V(56, -85, 0), V(0, 0, 1), 2.5),
    Part.Circle(V(82, 0, 0), V(0, 0, 1), 2.5),
], False)
sketch11.addConstraint([
    Sketcher.Constraint("Equal", 0, 1),
    Sketcher.Constraint("PointOnObject", 1, 3, -1),
    Sketcher.Constraint("Diameter", 0, Q("5 mm")),
    Sketcher.Constraint("DistanceX", -1, 1, 0, 3, Q("56 mm")),
    Sketcher.Constraint("DistanceY", 0, 3, -1, 1, Q("85 mm")),
    Sketcher.Constraint("DistanceX", -1, 1, 1, 3, Q("82 mm")),
])
pocket10 = body.newObject("PartDesign::Pocket", "Pocket009")
pocket10.Profile = sketch11
pocket10.Type = "ThroughAll"
doc.recompute()

mirrored = body.newObject("PartDesign::Mirrored", "Mirrored")
mirrored.Originals = [pocket10]
mirrored.MirrorPlane = (doc.getObject("XY_Plane"), [""])
body.Tip = mirrored
doc.recompute()

mirrored2 = body.newObject("PartDesign::Mirrored", "Mirrored001")
mirrored2.Originals = [pocket10]
mirrored2.MirrorPlane = (doc.getObject("YZ_Plane"), [""])
body.Tip = mirrored2

sketch12 = body.newObject("Sketcher::SketchObject", "Sketch011")
sketch12.AttachmentSupport = (doc.getObject("XZ_Plane"), [""])
sketch12.MapMode = "FlatFace"
sketch12.addGeometry([
    Part.Circle(V(-56, 85, 0), V(0, 0, 1), 2.5),
    Part.Circle(V(-82, 0, 0), V(0, 0, 1), 2.5),
], False)
sketch12.addConstraint([
    Sketcher.Constraint("Equal", 0, 1),
    Sketcher.Constraint("PointOnObject", 1, 3, -1),
    Sketcher.Constraint("Diameter", 0, Q("5 mm")),
    Sketcher.Constraint("DistanceX", 0, 3, -1, 1, Q("56 mm")),
    Sketcher.Constraint("DistanceY", -1, 1, 0, 3, Q("85 mm")),
    Sketcher.Constraint("DistanceX", 1, 3, -1, 1, Q("82 mm")),
])
pocket11 = body.newObject("PartDesign::Pocket", "Pocket010")
pocket11.Profile = sketch12
pocket11.Type = "ThroughAll"
doc.recompute()

fillet = body.newObject("PartDesign::Fillet", "Fillet")
fillet.Base = (pocket11, edges_at(pocket11, [
    (101.6, 3.175, 101.6),
    (-101.6, 3.175, 101.6),
    (-101.6, 3.175, -101.6),
    (101.6, 3.175, -101.6),
]))
fillet.Radius = 4

sketch13 = body.newObject("Sketcher::SketchObject", "Sketch012")
sketch13.AttachmentSupport = (doc.getObject("XZ_Plane"), [""])
sketch13.MapMode = "FlatFace"
sketch13.AttachmentOffset = App.Placement(V(0, 0, -6.35), App.Rotation())
sketch13.addGeometry([
    Part.LineSegment(V(-16.97807, 42.15, 0), V(16.97807, 42.15, 0)),
    Part.LineSegment(V(16.97807, 42.15, 0), V(21.15, 37.97807, 0)),
    Part.LineSegment(V(21.15, 37.97807, 0), V(21.15, 4.02193, 0)),
    Part.LineSegment(V(21.15, 4.02193, 0), V(16.97807, -0.15, 0)),
    Part.LineSegment(V(16.97807, -0.15, 0), V(-16.97807, -0.15, 0)),
    Part.LineSegment(V(-16.97807, -0.15, 0), V(-21.15, 4.02193, 0)),
    Part.LineSegment(V(-21.15, 4.02193, 0), V(-21.15, 37.97807, 0)),
    Part.LineSegment(V(-21.15, 37.97807, 0), V(-16.97807, 42.15, 0)),
], False)
sketch13.addConstraint([
    Sketcher.Constraint("Coincident", 0, 2, 1, 1),
    Sketcher.Constraint("Coincident", 1, 2, 2, 1),
    Sketcher.Constraint("Coincident", 2, 2, 3, 1),
    Sketcher.Constraint("Coincident", 3, 2, 4, 1),
    Sketcher.Constraint("Coincident", 4, 2, 5, 1),
    Sketcher.Constraint("Coincident", 5, 2, 6, 1),
    Sketcher.Constraint("Coincident", 6, 2, 7, 1),
    Sketcher.Constraint("Coincident", 7, 2, 0, 1),
    Sketcher.Constraint("Horizontal", 0),
    Sketcher.Constraint("Vertical", 2),
    Sketcher.Constraint("Horizontal", 4),
    Sketcher.Constraint("Vertical", 6),
    Sketcher.Constraint("Symmetric", 2, 2, 5, 2, -2),
    Sketcher.Constraint("Perpendicular", 1, 3),
    Sketcher.Constraint("Perpendicular", 3, 5),
    Sketcher.Constraint("Perpendicular", 5, 7),
    Sketcher.Constraint("Horizontal", 1, 2, 6, 2),
    Sketcher.Constraint("Vertical", 0, 2, 3, 2),
    Sketcher.Constraint("Vertical", 4, 2, 7, 2),
    Sketcher.Constraint("Equal", 4, 2),
    Sketcher.Constraint("Distance", 1, Q("5.9 mm")),
    Sketcher.Constraint("DistanceY", 3, 2, 0, 2, Q("42.3 mm")),
    Sketcher.Constraint("DistanceY", -1, 1, 0, 2, Q("42.15 mm")),
])
pocket12 = body.newObject("PartDesign::Pocket", "Pocket011")
pocket12.Profile = sketch13
pocket12.Type = "ThroughAll"
pocket12.Reversed = True

sketch14 = body.newObject("Sketcher::SketchObject", "Sketch013")
sketch14.AttachmentSupport = (doc.getObject("XZ_Plane"), [""])
sketch14.MapMode = "FlatFace"
sketch14.AttachmentOffset = App.Placement(V(0, 0, -6.35), App.Rotation())
sketch14.addGeometry([
    Part.Circle(V(35.6, 36.15, 0), V(0, 0, 1), 2.6),
    Part.Circle(V(35.6, 6.15, 0), V(0, 0, 1), 2.6),
    Part.Circle(V(-35.9, 36.15, 0), V(0, 0, 1), 2.6),
    Part.Circle(V(-35.9, 6.15, 0), V(0, 0, 1), 2.6),
], False)
sketch14.addConstraint([
    Sketcher.Constraint("Equal", 0, 1),
    Sketcher.Constraint("Equal", 1, 2),
    Sketcher.Constraint("Equal", 2, 3),
    Sketcher.Constraint("Horizontal", 0, 3, 2, 3),
    Sketcher.Constraint("Horizontal", 1, 3, 3, 3),
    Sketcher.Constraint("Vertical", 0, 3, 1, 3),
    Sketcher.Constraint("Vertical", 2, 3, 3, 3),
    Sketcher.Constraint("Diameter", 0, Q("5.2 mm")),
    Sketcher.Constraint("DistanceY", 1, 3, 0, 3, Q("30 mm")),
    Sketcher.Constraint("DistanceX", -1, 1, 0, 3, Q("35.6 mm")),
    Sketcher.Constraint("DistanceX", 2, 3, -1, 1, Q("35.9 mm")),
    Sketcher.Constraint("DistanceY", -1, 1, 0, 3, Q("36.15 mm")),
])
pocket13 = body.newObject("PartDesign::Pocket", "Pocket012")
pocket13.Profile = sketch14
pocket13.Type = "ThroughAll"
pocket13.Reversed = True

sketch15 = body.newObject("Sketcher::SketchObject", "Sketch014")
sketch15.AttachmentSupport = (doc.getObject("XZ_Plane"), [""])
sketch15.MapMode = "FlatFace"
sketch15.AttachmentOffset = App.Placement(V(0, 0, -6.35), App.Rotation())
sketch15.addGeometry([
    Part.LineSegment(V(31.096668, 36.15, 0), V(33.348334, 40.05, 0)),
    Part.LineSegment(V(33.348334, 40.05, 0), V(37.851666, 40.05, 0)),
    Part.LineSegment(V(37.851666, 40.05, 0), V(40.103332, 36.15, 0)),
    Part.LineSegment(V(40.103332, 36.15, 0), V(37.851666, 32.25, 0)),
    Part.LineSegment(V(37.851666, 32.25, 0), V(33.348334, 32.25, 0)),
    Part.LineSegment(V(33.348334, 32.25, 0), V(31.096668, 36.15, 0)),
    Part.LineSegment(V(31.096668, 6.15, 0), V(33.348334, 10.05, 0)),
    Part.LineSegment(V(33.348334, 10.05, 0), V(37.851666, 10.05, 0)),
    Part.LineSegment(V(37.851666, 10.05, 0), V(40.103332, 6.15, 0)),
    Part.LineSegment(V(40.103332, 6.15, 0), V(37.851666, 2.25, 0)),
    Part.LineSegment(V(37.851666, 2.25, 0), V(33.348334, 2.25, 0)),
    Part.LineSegment(V(33.348334, 2.25, 0), V(31.096668, 6.15, 0)),
    Part.LineSegment(V(-40.403332, 6.15, 0), V(-38.151666, 10.05, 0)),
    Part.LineSegment(V(-38.151666, 10.05, 0), V(-33.648334, 10.05, 0)),
    Part.LineSegment(V(-33.648334, 10.05, 0), V(-31.396668, 6.15, 0)),
    Part.LineSegment(V(-31.396668, 6.15, 0), V(-33.648334, 2.25, 0)),
    Part.LineSegment(V(-33.648334, 2.25, 0), V(-38.151666, 2.25, 0)),
    Part.LineSegment(V(-38.151666, 2.25, 0), V(-40.403332, 6.15, 0)),
    Part.LineSegment(V(-40.403332, 36.15, 0), V(-38.151666, 40.05, 0)),
    Part.LineSegment(V(-38.151666, 40.05, 0), V(-33.648334, 40.05, 0)),
    Part.LineSegment(V(-33.648334, 40.05, 0), V(-31.396668, 36.15, 0)),
    Part.LineSegment(V(-31.396668, 36.15, 0), V(-33.648334, 32.25, 0)),
    Part.LineSegment(V(-33.648334, 32.25, 0), V(-38.151666, 32.25, 0)),
    Part.LineSegment(V(-38.151666, 32.25, 0), V(-40.403332, 36.15, 0)),
], False)
sketch15.addConstraint([
    Sketcher.Constraint("Coincident", 0, 2, 1, 1),
    Sketcher.Constraint("Coincident", 1, 2, 2, 1),
    Sketcher.Constraint("Coincident", 2, 2, 3, 1),
    Sketcher.Constraint("Coincident", 3, 2, 4, 1),
    Sketcher.Constraint("Coincident", 4, 2, 5, 1),
    Sketcher.Constraint("Coincident", 5, 2, 0, 1),
    Sketcher.Constraint("Coincident", 6, 2, 7, 1),
    Sketcher.Constraint("Coincident", 7, 2, 8, 1),
    Sketcher.Constraint("Coincident", 8, 2, 9, 1),
    Sketcher.Constraint("Coincident", 9, 2, 10, 1),
    Sketcher.Constraint("Coincident", 10, 2, 11, 1),
    Sketcher.Constraint("Coincident", 11, 2, 6, 1),
    Sketcher.Constraint("Coincident", 12, 2, 13, 1),
    Sketcher.Constraint("Coincident", 13, 2, 14, 1),
    Sketcher.Constraint("Coincident", 14, 2, 15, 1),
    Sketcher.Constraint("Coincident", 15, 2, 16, 1),
    Sketcher.Constraint("Coincident", 16, 2, 17, 1),
    Sketcher.Constraint("Coincident", 17, 2, 12, 1),
    Sketcher.Constraint("Coincident", 18, 2, 19, 1),
    Sketcher.Constraint("Coincident", 19, 2, 20, 1),
    Sketcher.Constraint("Coincident", 20, 2, 21, 1),
    Sketcher.Constraint("Coincident", 21, 2, 22, 1),
    Sketcher.Constraint("Coincident", 22, 2, 23, 1),
    Sketcher.Constraint("Coincident", 23, 2, 18, 1),
    Sketcher.Constraint("Horizontal", 1),
    Sketcher.Constraint("Horizontal", 4),
    Sketcher.Constraint("Horizontal", 7),
    Sketcher.Constraint("Horizontal", 10),
    Sketcher.Constraint("Horizontal", 13),
    Sketcher.Constraint("Horizontal", 16),
    Sketcher.Constraint("Horizontal", 19),
    Sketcher.Constraint("Horizontal", 22),
    Sketcher.Constraint("Parallel", 0, 3),
    Sketcher.Constraint("Parallel", 2, 5),
    Sketcher.Constraint("Parallel", 3, 6),
    Sketcher.Constraint("Parallel", 5, 8),
    Sketcher.Constraint("Parallel", 6, 9),
    Sketcher.Constraint("Parallel", 8, 11),
    Sketcher.Constraint("Parallel", 9, 12),
    Sketcher.Constraint("Parallel", 11, 14),
    Sketcher.Constraint("Parallel", 12, 15),
    Sketcher.Constraint("Parallel", 14, 17),
    Sketcher.Constraint("Parallel", 15, 18),
    Sketcher.Constraint("Parallel", 17, 20),
    Sketcher.Constraint("Parallel", 18, 21),
    Sketcher.Constraint("Parallel", 20, 23),
    Sketcher.Constraint("Horizontal", 2, 2, 5, 2),
    Sketcher.Constraint("Horizontal", 8, 2, 11, 2),
    Sketcher.Constraint("Horizontal", 7, 2, 12, 2),
    Sketcher.Constraint("Horizontal", 11, 2, 14, 2),
    Sketcher.Constraint("Horizontal", 10, 2, 15, 2),
    Sketcher.Constraint("Horizontal", 14, 2, 17, 2),
    Sketcher.Constraint("Horizontal", 1, 2, 18, 2),
    Sketcher.Constraint("Horizontal", 5, 2, 20, 2),
    Sketcher.Constraint("Horizontal", 4, 2, 21, 2),
    Sketcher.Constraint("Horizontal", 20, 2, 23, 2),
    Sketcher.Constraint("Vertical", 1, 2, 3, 2),
    Sketcher.Constraint("Vertical", 0, 2, 4, 2),
    Sketcher.Constraint("Vertical", 4, 2, 6, 2),
    Sketcher.Constraint("Vertical", 3, 2, 7, 2),
    Sketcher.Constraint("Vertical", 2, 2, 8, 2),
    Sketcher.Constraint("Vertical", 7, 2, 9, 2),
    Sketcher.Constraint("Vertical", 16, 2, 18, 2),
    Sketcher.Constraint("Vertical", 15, 2, 19, 2),
    Sketcher.Constraint("Equal", 10, 13),
    Sketcher.Constraint("Angle", 0, Q("60 deg")),
    Sketcher.Constraint("DistanceY", 6, 2, 0, 2, Q("30 mm")),
    Sketcher.Constraint("DistanceY", 2, 2, 1, 2, Q("3.9 mm")),
    Sketcher.Constraint("DistanceX", 12, 2, 6, 2, Q("71.5 mm")),
    Sketcher.Constraint("DistanceY", -1, 1, 0, 2, Q("40.05 mm")),
    Sketcher.Constraint("DistanceX", 0, 2, 2, 2, Q("6.754998 mm")),
    Sketcher.Constraint("DistanceX", -1, 1, 0, 2, Q("33.348334 mm")),
])
pocket14 = body.newObject("PartDesign::Pocket", "Pocket013")
pocket14.Profile = sketch15
pocket14.Type = "ThroughAll"
pocket14.Reversed = True

doc.recompute()
